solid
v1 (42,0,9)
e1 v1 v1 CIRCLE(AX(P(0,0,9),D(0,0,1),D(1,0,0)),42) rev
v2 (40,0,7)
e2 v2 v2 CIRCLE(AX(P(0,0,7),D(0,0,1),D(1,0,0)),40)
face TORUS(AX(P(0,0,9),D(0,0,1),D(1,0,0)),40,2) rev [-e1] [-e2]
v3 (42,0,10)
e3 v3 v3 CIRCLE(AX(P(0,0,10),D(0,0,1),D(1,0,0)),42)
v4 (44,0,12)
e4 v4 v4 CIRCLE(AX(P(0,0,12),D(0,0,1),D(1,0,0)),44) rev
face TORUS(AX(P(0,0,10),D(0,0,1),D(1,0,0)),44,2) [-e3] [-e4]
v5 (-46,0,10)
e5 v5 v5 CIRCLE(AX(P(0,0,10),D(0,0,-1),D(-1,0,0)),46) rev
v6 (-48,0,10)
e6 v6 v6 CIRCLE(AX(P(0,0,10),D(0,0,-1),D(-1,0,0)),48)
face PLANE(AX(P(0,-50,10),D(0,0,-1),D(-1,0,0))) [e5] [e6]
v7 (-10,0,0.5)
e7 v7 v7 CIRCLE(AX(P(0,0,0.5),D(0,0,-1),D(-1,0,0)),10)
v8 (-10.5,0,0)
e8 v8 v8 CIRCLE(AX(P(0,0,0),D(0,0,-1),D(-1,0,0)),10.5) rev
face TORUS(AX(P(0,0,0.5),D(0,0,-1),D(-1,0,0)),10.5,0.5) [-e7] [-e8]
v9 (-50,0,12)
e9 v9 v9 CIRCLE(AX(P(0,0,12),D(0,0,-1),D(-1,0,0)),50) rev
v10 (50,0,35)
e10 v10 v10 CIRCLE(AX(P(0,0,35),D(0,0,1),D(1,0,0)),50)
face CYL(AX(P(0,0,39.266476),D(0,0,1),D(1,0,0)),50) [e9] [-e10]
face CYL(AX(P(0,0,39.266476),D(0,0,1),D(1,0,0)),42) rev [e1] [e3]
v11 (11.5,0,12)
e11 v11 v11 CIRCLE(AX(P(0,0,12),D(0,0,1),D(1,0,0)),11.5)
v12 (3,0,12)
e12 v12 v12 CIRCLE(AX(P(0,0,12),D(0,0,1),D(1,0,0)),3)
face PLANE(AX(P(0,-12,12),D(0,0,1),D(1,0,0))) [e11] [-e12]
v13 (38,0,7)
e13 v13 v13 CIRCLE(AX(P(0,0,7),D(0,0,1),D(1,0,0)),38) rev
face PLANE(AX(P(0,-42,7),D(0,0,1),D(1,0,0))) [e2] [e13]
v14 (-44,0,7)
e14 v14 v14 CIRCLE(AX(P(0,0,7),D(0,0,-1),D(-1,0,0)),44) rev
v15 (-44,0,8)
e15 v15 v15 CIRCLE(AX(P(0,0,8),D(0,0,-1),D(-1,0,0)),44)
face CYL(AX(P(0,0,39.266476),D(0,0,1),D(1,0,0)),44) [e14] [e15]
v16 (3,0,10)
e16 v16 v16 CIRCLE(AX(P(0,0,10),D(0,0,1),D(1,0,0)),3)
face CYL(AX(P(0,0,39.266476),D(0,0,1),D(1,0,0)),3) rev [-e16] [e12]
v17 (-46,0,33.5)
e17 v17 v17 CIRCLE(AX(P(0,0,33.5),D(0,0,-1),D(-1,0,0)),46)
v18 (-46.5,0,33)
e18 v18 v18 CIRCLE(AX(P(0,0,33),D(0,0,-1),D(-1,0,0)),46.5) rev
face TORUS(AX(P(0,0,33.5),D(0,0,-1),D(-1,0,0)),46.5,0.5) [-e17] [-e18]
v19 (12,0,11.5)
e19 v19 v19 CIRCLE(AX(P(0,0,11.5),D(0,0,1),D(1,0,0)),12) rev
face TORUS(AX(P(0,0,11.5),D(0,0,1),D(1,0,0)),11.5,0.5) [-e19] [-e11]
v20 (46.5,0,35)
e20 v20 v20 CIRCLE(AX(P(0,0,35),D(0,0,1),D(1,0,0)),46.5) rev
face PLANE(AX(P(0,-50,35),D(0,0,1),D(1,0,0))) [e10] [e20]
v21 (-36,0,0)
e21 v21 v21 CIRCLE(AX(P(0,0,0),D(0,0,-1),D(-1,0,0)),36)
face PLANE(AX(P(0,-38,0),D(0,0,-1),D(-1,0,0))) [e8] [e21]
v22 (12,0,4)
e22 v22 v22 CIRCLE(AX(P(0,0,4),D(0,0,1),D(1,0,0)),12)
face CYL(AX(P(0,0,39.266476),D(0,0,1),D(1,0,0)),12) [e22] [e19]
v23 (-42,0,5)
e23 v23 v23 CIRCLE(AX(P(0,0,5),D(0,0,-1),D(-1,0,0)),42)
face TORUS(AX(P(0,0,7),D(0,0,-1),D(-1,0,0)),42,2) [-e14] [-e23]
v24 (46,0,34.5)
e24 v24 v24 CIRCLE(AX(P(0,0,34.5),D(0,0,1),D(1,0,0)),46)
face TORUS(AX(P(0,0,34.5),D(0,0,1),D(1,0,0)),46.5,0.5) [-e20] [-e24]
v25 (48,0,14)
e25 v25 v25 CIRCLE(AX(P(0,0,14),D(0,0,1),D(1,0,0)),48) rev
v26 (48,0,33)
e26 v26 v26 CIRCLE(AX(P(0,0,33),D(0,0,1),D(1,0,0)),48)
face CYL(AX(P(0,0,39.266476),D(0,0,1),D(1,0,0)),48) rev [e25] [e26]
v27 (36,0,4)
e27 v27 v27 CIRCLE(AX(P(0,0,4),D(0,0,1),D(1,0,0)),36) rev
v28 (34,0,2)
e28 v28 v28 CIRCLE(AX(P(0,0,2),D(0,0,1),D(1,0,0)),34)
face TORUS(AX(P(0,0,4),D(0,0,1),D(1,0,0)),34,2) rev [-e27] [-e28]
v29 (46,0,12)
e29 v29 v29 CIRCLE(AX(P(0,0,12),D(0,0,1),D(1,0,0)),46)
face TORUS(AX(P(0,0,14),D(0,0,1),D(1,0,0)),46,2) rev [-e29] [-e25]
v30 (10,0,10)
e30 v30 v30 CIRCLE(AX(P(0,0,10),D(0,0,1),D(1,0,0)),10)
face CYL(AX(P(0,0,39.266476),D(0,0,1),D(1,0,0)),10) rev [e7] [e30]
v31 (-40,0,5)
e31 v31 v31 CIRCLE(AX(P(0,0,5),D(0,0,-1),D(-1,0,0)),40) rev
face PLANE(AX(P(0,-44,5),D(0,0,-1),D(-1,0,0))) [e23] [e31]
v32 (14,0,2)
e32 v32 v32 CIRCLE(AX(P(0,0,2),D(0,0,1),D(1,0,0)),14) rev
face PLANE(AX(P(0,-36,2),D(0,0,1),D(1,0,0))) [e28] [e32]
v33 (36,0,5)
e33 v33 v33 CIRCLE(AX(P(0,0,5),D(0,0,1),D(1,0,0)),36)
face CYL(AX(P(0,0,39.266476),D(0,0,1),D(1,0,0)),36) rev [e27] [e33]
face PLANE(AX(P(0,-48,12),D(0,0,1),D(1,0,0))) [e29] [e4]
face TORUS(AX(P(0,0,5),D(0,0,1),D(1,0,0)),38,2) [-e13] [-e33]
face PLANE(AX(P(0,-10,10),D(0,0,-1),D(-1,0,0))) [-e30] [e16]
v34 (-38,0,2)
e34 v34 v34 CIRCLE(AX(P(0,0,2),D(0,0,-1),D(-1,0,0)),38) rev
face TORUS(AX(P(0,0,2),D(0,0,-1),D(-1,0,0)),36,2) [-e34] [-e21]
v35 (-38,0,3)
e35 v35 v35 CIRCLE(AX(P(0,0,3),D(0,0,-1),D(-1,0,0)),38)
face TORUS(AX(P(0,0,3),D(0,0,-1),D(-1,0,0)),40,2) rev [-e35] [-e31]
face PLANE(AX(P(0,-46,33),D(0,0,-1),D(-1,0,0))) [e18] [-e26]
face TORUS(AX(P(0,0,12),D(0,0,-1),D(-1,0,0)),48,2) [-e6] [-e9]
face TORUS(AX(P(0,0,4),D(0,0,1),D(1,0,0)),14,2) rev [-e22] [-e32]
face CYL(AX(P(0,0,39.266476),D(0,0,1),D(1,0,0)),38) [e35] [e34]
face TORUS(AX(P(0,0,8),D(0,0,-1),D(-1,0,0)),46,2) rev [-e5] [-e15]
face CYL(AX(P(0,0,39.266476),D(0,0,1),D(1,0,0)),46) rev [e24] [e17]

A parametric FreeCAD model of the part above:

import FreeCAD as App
import Part
import Sketcher


def edges_at(feature, points):
    """Names of the edges that pass closest to the given points."""
    edges = feature.Shape.Edges
    near = lambda p: min(range(len(edges)), key=lambda i: edges[i].distToShape(Part.Vertex(*p))[0])
    return sorted({f"Edge{near(p) + 1}" for p in points})


def add_polygon(sketch, points):
    """Adds a closed chain of lines whose ends are joined by coincident constraints."""
    first, n = sketch.GeometryCount, len(points)
    for a, b in zip(points, points[1:] + points[:1]):
        sketch.addGeometry(Part.LineSegment(App.Vector(*a, 0), App.Vector(*b, 0)), False)
    for i in range(n):
        sketch.addConstraint(Sketcher.Constraint("Coincident", first + i, 2, first + (i + 1) % n, 1))

doc = App.newDocument("Part")
params = doc.addObject("Spreadsheet::Sheet", "Params")
for row, (alias, value) in enumerate([
    ("sketch1_width", "6 mm"),
    ("sketch1_width2", "28 mm"),
    ("sketch1_width3", "7 mm"),
    ("sketch1_width4", "9 mm"),
    ("sketch1_width5", "24 mm"),
    ("revolution_angle", "360 deg"),
    ("fillet_radius", "2 mm"),
    ("fillet2_radius", "0.5 mm"),
], start=1):
    params.set(f"A{row}", alias)
    params.set(f"B{row}", "=" + value)
    params.setAlias(f"B{row}", alias)

body = doc.addObject("PartDesign::Body", "Body")

sketch1 = doc.addObject("Sketcher::SketchObject", "Sketch")
body.addObject(sketch1)
sketch1.AttachmentSupport = (doc.YZ_Plane, [""])
sketch1.MapMode = "FlatFace"
add_polygon(sketch1, [(-50, 35), (-50, 10), (-44, 10), (-44, 5), (-38, 5), (-38, 0), (-10, 0), (-10, 10), (-3, 10), (-3, 12), (-12, 12), (-12, 2), (-36, 2), (-36, 7), (-42, 7), (-42, 12), (-48, 12), (-48, 33), (-46, 33), (-46, 35)])
sketch1.addConstraint(Sketcher.Constraint("Vertical", 0))
sketch1.addConstraint(Sketcher.Constraint("Horizontal", 1))
sketch1.addConstraint(Sketcher.Constraint("Vertical", 2))
sketch1.addConstraint(Sketcher.Constraint("Horizontal", 3))
sketch1.addConstraint(Sketcher.Constraint("Vertical", 4))
sketch1.addConstraint(Sketcher.Constraint("Horizontal", 5))
sketch1.addConstraint(Sketcher.Constraint("Vertical", 6))
sketch1.addConstraint(Sketcher.Constraint("Horizontal", 7))
sketch1.addConstraint(Sketcher.Constraint("Vertical", 8))
sketch1.addConstraint(Sketcher.Constraint("Horizontal", 9))
sketch1.addConstraint(Sketcher.Constraint("Vertical", 10))
sketch1.addConstraint(Sketcher.Constraint("Horizontal", 11))
sketch1.addConstraint(Sketcher.Constraint("Vertical", 12))
sketch1.addConstraint(Sketcher.Constraint("Horizontal", 13))
sketch1.addConstraint(Sketcher.Constraint("Vertical", 14))
sketch1.addConstraint(Sketcher.Constraint("Horizontal", 15))
sketch1.addConstraint(Sketcher.Constraint("Vertical", 16))
sketch1.addConstraint(Sketcher.Constraint("Horizontal", 17))
sketch1.addConstraint(Sketcher.Constraint("Vertical", 18))
sketch1.addConstraint(Sketcher.Constraint("Horizontal", 19))
sketch1.addConstraint(Sketcher.Constraint("PointOnObject", 4, 2, -1))
sketch1.addConstraint(Sketcher.Constraint("Horizontal", 1, 2, 6, 2))
sketch1.addConstraint(Sketcher.Constraint("Horizontal", 9, 2, 14, 2))
sketch1.addConstraint(Sketcher.Constraint("Equal", 1, 3))
sketch1.addConstraint(Sketcher.Constraint("Equal", 3, 13))
sketch1.addConstraint(Sketcher.Constraint("Equal", 13, 15))
sketch1.addConstraint(Sketcher.Constraint("Equal", 2, 4))
sketch1.addConstraint(Sketcher.Constraint("Equal", 17, 8))
sketch1.addConstraint(Sketcher.Constraint("Equal", 6, 10))
sketch1.addConstraint(Sketcher.Constraint("Equal", 4, 12))
sketch1.addConstraint(Sketcher.Constraint("Equal", 8, 18))
sketch1.addConstraint(Sketcher.Constraint("DistanceX", 1, 1, 1, 2, 6.0))
sketch1.addConstraint(Sketcher.Constraint("DistanceX", 5, 1, 5, 2, 28.0))
sketch1.addConstraint(Sketcher.Constraint("DistanceX", 7, 1, 7, 2, 7.0))
sketch1.addConstraint(Sketcher.Constraint("DistanceX", 9, 2, 9, 1, 9.0))
sketch1.addConstraint(Sketcher.Constraint("DistanceX", 11, 2, 11, 1, 24.0))
sketch1.addConstraint(Sketcher.Constraint("DistanceX", 17, 1, 17, 2, 2.0))
sketch1.addConstraint(Sketcher.Constraint("DistanceY", 0, 2, 0, 1, 25.0))
sketch1.addConstraint(Sketcher.Constraint("DistanceY", 2, 2, 2, 1, 5.0))
sketch1.addConstraint(Sketcher.Constraint("DistanceX", 0, 2, -1, 1, 50.0))
sketch1.setExpression("Constraints[51]", "Params.sketch1_width")
sketch1.setExpression("Constraints[52]", "Params.sketch1_width2")
sketch1.setExpression("Constraints[53]", "Params.sketch1_width3")
sketch1.setExpression("Constraints[54]", "Params.sketch1_width4")
sketch1.setExpression("Constraints[55]", "Params.sketch1_width5")
revolution = doc.addObject("PartDesign::Revolution", "Revolution")
body.addObject(revolution)
revolution.Profile = sketch1
revolution.ReferenceAxis = (sketch1, ["V_Axis"])
revolution.setExpression("Angle", "Params.revolution_angle")
doc.recompute()

fillet = doc.addObject("PartDesign::Fillet", "Fillet")
body.addObject(fillet)
fillet.Base = (revolution, edges_at(revolution, [
    (-50, 0, 10),
    (-44, 0, 10),
    (-44, 0, 5),
    (-38, 0, 5),
    (-38, 0, 0),
    (-12, 0, 2),
    (-36, 0, 2),
    (-36, 0, 7),
    (-42, 0, 7),
    (-42, 0, 12),
    (-48, 0, 12),
]))
fillet.setExpression("Radius", "Params.fillet_radius")
doc.recompute()

fillet2 = doc.addObject("PartDesign::Fillet", "Fillet001")
body.addObject(fillet2)
fillet2.Base = (fillet, edges_at(fillet, [
    (-10, 0, 0),
    (-12, 0, 12),
    (-46, 0, 33),
    (-46, 0, 35),
]))
fillet2.setExpression("Radius", "Params.fillet2_radius")

doc.recompute()
